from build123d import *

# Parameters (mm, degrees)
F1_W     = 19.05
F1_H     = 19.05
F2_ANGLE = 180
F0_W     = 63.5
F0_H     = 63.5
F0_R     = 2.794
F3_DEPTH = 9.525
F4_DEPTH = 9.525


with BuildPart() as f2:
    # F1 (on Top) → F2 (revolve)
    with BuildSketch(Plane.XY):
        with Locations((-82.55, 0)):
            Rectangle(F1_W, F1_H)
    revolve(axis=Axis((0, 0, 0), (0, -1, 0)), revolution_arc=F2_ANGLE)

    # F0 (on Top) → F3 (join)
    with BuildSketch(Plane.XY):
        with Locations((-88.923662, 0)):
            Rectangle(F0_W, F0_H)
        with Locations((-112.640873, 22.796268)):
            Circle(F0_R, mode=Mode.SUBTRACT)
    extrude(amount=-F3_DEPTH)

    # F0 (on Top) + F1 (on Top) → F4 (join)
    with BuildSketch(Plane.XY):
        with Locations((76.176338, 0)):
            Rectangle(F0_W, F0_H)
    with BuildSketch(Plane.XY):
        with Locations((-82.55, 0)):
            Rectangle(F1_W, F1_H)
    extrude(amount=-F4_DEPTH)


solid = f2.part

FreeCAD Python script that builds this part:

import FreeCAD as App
import Part
import Sketcher
from FreeCAD import Vector
Q = App.Units.Quantity


def add_polygon(sketch, points):
    """Adds a closed chain of lines whose ends are joined by coincident constraints."""
    first, n = sketch.GeometryCount, len(points)
    for a, b in zip(points, points[1:] + points[:1]):
        sketch.addGeometry(Part.LineSegment(App.Vector(*a, 0), App.Vector(*b, 0)), False)
    for i in range(n):
        sketch.addConstraint(Sketcher.Constraint("Coincident", first + i, 2, first + (i + 1) % n, 1))

doc = App.newDocument("Part")
body = doc.addObject("PartDesign::Body", "Body")

# Sketch on XY plane
sketch1 = doc.addObject("Sketcher::SketchObject", "Sketch")
body.addObject(sketch1)
sketch1.AttachmentSupport = (doc.XY_Plane, [""])
sketch1.MapMode = "FlatFace"
add_polygon(sketch1, [(-92, 10), (-92, -10), (-73, -10), (-73, 10)])  # lines 0-3
sketch1.addConstraint(Sketcher.Constraint("Vertical", 0))
sketch1.addConstraint(Sketcher.Constraint("Horizontal", 1))
sketch1.addConstraint(Sketcher.Constraint("Vertical", 2))
sketch1.addConstraint(Sketcher.Constraint("Horizontal", 3))
sketch1.addConstraint(Sketcher.Constraint("Equal", 3, 0))
sketch1.addConstraint(Sketcher.Constraint("DistanceX", 1, 1, 1, 2, Q("0.75 in")))
sketch1.addConstraint(Sketcher.Constraint("DistanceX", 0, 2, -1, 1, Q("3.625 in")))
sketch1.addConstraint(Sketcher.Constraint("DistanceY", 0, 2, -1, 1, Q("0.375 in")))
revolution = doc.addObject("PartDesign::Revolution", "Revolution")
body.addObject(revolution)
revolution.Profile = sketch1
revolution.ReferenceAxis = (sketch1, ["V_Axis"])
revolution.Angle = 180
revolution.Reversed = True

# Sketch on XY plane
sketch2 = doc.addObject("Sketcher::SketchObject", "Sketch001")
body.addObject(sketch2)
sketch2.AttachmentSupport = (doc.XY_Plane, [""])
sketch2.MapMode = "FlatFace"
add_polygon(sketch2, [(-120.7, 31.8), (-120.7, -31.8), (-57.2, -31.8), (-57.2, 31.8)])  # lines 0-3
sketch2.addGeometry(Part.Circle(Vector(-112.6, 22.8, 0), Vector(0, 0, 1), 2.8), False)  # 4
sketch2.addConstraint(Sketcher.Constraint("Vertical", 0))
sketch2.addConstraint(Sketcher.Constraint("Horizontal", 1))
sketch2.addConstraint(Sketcher.Constraint("Vertical", 2))
sketch2.addConstraint(Sketcher.Constraint("Horizontal", 3))
sketch2.addConstraint(Sketcher.Constraint("Equal", 3, 0))
sketch2.addConstraint(Sketcher.Constraint("Diameter", 4, Q("0.22 in")))
sketch2.addConstraint(Sketcher.Constraint("DistanceX", 1, 1, 1, 2, Q("2.5 in")))
sketch2.addConstraint(Sketcher.Constraint("DistanceY", 0, 2, -1, 1, Q("1.25 in")))
sketch2.addConstraint(Sketcher.Constraint("DistanceY", -1, 1, 4, 3, Q("22.796268 mm")))
sketch2.addConstraint(Sketcher.Constraint("DistanceX", 0, 2, -1, 1, Q("120.673662 mm")))
sketch2.addConstraint(Sketcher.Constraint("DistanceX", 0, 2, 4, 3, Q("8.032789 mm")))
pad1 = doc.addObject("PartDesign::Pad", "Pad")
body.addObject(pad1)
pad1.Profile = sketch2
pad1.Length = Q("0.375 in")
pad1.Reversed = True

# Sketch on XY plane
sketch3 = doc.addObject("Sketcher::SketchObject", "Sketch002")
body.addObject(sketch3)
sketch3.AttachmentSupport = (doc.XY_Plane, [""])
sketch3.MapMode = "FlatFace"
add_polygon(sketch3, [(44, 32), (44, -32), (108, -32), (108, 32)])  # lines 0-3
add_polygon(sketch3, [(-92, 10), (-92, -10), (-73, -10), (-73, 10)])  # lines 4-7
sketch3.addConstraint(Sketcher.Constraint("Vertical", 0))
sketch3.addConstraint(Sketcher.Constraint("Horizontal", 1))
sketch3.addConstraint(Sketcher.Constraint("Vertical", 2))
sketch3.addConstraint(Sketcher.Constraint("Horizontal", 3))
sketch3.addConstraint(Sketcher.Constraint("Vertical", 4))
sketch3.addConstraint(Sketcher.Constraint("Horizontal", 5))
sketch3.addConstraint(Sketcher.Constraint("Vertical", 6))
sketch3.addConstraint(Sketcher.Constraint("Horizontal", 7))
sketch3.addConstraint(Sketcher.Constraint("Equal", 3, 0))
sketch3.addConstraint(Sketcher.Constraint("Equal", 7, 4))
sketch3.addConstraint(Sketcher.Constraint("DistanceX", 1, 1, 1, 2, Q("2.5 in")))
sketch3.addConstraint(Sketcher.Constraint("DistanceX", 5, 1, 5, 2, Q("0.75 in")))
sketch3.addConstraint(Sketcher.Constraint("DistanceY", 0, 2, -1, 1, Q("1.25 in")))
sketch3.addConstraint(Sketcher.Constraint("DistanceX", 4, 2, -1, 1, Q("3.625 in")))
sketch3.addConstraint(Sketcher.Constraint("DistanceY", 4, 2, -1, 1, Q("0.375 in")))
sketch3.addConstraint(Sketcher.Constraint("DistanceX", -1, 1, 1, 2, Q("107.926338 mm")))
pad2 = doc.addObject("PartDesign::Pad", "Pad001")
body.addObject(pad2)
pad2.Profile = sketch3
pad2.Length = Q("0.375 in")
pad2.Reversed = True

doc.recompute()
